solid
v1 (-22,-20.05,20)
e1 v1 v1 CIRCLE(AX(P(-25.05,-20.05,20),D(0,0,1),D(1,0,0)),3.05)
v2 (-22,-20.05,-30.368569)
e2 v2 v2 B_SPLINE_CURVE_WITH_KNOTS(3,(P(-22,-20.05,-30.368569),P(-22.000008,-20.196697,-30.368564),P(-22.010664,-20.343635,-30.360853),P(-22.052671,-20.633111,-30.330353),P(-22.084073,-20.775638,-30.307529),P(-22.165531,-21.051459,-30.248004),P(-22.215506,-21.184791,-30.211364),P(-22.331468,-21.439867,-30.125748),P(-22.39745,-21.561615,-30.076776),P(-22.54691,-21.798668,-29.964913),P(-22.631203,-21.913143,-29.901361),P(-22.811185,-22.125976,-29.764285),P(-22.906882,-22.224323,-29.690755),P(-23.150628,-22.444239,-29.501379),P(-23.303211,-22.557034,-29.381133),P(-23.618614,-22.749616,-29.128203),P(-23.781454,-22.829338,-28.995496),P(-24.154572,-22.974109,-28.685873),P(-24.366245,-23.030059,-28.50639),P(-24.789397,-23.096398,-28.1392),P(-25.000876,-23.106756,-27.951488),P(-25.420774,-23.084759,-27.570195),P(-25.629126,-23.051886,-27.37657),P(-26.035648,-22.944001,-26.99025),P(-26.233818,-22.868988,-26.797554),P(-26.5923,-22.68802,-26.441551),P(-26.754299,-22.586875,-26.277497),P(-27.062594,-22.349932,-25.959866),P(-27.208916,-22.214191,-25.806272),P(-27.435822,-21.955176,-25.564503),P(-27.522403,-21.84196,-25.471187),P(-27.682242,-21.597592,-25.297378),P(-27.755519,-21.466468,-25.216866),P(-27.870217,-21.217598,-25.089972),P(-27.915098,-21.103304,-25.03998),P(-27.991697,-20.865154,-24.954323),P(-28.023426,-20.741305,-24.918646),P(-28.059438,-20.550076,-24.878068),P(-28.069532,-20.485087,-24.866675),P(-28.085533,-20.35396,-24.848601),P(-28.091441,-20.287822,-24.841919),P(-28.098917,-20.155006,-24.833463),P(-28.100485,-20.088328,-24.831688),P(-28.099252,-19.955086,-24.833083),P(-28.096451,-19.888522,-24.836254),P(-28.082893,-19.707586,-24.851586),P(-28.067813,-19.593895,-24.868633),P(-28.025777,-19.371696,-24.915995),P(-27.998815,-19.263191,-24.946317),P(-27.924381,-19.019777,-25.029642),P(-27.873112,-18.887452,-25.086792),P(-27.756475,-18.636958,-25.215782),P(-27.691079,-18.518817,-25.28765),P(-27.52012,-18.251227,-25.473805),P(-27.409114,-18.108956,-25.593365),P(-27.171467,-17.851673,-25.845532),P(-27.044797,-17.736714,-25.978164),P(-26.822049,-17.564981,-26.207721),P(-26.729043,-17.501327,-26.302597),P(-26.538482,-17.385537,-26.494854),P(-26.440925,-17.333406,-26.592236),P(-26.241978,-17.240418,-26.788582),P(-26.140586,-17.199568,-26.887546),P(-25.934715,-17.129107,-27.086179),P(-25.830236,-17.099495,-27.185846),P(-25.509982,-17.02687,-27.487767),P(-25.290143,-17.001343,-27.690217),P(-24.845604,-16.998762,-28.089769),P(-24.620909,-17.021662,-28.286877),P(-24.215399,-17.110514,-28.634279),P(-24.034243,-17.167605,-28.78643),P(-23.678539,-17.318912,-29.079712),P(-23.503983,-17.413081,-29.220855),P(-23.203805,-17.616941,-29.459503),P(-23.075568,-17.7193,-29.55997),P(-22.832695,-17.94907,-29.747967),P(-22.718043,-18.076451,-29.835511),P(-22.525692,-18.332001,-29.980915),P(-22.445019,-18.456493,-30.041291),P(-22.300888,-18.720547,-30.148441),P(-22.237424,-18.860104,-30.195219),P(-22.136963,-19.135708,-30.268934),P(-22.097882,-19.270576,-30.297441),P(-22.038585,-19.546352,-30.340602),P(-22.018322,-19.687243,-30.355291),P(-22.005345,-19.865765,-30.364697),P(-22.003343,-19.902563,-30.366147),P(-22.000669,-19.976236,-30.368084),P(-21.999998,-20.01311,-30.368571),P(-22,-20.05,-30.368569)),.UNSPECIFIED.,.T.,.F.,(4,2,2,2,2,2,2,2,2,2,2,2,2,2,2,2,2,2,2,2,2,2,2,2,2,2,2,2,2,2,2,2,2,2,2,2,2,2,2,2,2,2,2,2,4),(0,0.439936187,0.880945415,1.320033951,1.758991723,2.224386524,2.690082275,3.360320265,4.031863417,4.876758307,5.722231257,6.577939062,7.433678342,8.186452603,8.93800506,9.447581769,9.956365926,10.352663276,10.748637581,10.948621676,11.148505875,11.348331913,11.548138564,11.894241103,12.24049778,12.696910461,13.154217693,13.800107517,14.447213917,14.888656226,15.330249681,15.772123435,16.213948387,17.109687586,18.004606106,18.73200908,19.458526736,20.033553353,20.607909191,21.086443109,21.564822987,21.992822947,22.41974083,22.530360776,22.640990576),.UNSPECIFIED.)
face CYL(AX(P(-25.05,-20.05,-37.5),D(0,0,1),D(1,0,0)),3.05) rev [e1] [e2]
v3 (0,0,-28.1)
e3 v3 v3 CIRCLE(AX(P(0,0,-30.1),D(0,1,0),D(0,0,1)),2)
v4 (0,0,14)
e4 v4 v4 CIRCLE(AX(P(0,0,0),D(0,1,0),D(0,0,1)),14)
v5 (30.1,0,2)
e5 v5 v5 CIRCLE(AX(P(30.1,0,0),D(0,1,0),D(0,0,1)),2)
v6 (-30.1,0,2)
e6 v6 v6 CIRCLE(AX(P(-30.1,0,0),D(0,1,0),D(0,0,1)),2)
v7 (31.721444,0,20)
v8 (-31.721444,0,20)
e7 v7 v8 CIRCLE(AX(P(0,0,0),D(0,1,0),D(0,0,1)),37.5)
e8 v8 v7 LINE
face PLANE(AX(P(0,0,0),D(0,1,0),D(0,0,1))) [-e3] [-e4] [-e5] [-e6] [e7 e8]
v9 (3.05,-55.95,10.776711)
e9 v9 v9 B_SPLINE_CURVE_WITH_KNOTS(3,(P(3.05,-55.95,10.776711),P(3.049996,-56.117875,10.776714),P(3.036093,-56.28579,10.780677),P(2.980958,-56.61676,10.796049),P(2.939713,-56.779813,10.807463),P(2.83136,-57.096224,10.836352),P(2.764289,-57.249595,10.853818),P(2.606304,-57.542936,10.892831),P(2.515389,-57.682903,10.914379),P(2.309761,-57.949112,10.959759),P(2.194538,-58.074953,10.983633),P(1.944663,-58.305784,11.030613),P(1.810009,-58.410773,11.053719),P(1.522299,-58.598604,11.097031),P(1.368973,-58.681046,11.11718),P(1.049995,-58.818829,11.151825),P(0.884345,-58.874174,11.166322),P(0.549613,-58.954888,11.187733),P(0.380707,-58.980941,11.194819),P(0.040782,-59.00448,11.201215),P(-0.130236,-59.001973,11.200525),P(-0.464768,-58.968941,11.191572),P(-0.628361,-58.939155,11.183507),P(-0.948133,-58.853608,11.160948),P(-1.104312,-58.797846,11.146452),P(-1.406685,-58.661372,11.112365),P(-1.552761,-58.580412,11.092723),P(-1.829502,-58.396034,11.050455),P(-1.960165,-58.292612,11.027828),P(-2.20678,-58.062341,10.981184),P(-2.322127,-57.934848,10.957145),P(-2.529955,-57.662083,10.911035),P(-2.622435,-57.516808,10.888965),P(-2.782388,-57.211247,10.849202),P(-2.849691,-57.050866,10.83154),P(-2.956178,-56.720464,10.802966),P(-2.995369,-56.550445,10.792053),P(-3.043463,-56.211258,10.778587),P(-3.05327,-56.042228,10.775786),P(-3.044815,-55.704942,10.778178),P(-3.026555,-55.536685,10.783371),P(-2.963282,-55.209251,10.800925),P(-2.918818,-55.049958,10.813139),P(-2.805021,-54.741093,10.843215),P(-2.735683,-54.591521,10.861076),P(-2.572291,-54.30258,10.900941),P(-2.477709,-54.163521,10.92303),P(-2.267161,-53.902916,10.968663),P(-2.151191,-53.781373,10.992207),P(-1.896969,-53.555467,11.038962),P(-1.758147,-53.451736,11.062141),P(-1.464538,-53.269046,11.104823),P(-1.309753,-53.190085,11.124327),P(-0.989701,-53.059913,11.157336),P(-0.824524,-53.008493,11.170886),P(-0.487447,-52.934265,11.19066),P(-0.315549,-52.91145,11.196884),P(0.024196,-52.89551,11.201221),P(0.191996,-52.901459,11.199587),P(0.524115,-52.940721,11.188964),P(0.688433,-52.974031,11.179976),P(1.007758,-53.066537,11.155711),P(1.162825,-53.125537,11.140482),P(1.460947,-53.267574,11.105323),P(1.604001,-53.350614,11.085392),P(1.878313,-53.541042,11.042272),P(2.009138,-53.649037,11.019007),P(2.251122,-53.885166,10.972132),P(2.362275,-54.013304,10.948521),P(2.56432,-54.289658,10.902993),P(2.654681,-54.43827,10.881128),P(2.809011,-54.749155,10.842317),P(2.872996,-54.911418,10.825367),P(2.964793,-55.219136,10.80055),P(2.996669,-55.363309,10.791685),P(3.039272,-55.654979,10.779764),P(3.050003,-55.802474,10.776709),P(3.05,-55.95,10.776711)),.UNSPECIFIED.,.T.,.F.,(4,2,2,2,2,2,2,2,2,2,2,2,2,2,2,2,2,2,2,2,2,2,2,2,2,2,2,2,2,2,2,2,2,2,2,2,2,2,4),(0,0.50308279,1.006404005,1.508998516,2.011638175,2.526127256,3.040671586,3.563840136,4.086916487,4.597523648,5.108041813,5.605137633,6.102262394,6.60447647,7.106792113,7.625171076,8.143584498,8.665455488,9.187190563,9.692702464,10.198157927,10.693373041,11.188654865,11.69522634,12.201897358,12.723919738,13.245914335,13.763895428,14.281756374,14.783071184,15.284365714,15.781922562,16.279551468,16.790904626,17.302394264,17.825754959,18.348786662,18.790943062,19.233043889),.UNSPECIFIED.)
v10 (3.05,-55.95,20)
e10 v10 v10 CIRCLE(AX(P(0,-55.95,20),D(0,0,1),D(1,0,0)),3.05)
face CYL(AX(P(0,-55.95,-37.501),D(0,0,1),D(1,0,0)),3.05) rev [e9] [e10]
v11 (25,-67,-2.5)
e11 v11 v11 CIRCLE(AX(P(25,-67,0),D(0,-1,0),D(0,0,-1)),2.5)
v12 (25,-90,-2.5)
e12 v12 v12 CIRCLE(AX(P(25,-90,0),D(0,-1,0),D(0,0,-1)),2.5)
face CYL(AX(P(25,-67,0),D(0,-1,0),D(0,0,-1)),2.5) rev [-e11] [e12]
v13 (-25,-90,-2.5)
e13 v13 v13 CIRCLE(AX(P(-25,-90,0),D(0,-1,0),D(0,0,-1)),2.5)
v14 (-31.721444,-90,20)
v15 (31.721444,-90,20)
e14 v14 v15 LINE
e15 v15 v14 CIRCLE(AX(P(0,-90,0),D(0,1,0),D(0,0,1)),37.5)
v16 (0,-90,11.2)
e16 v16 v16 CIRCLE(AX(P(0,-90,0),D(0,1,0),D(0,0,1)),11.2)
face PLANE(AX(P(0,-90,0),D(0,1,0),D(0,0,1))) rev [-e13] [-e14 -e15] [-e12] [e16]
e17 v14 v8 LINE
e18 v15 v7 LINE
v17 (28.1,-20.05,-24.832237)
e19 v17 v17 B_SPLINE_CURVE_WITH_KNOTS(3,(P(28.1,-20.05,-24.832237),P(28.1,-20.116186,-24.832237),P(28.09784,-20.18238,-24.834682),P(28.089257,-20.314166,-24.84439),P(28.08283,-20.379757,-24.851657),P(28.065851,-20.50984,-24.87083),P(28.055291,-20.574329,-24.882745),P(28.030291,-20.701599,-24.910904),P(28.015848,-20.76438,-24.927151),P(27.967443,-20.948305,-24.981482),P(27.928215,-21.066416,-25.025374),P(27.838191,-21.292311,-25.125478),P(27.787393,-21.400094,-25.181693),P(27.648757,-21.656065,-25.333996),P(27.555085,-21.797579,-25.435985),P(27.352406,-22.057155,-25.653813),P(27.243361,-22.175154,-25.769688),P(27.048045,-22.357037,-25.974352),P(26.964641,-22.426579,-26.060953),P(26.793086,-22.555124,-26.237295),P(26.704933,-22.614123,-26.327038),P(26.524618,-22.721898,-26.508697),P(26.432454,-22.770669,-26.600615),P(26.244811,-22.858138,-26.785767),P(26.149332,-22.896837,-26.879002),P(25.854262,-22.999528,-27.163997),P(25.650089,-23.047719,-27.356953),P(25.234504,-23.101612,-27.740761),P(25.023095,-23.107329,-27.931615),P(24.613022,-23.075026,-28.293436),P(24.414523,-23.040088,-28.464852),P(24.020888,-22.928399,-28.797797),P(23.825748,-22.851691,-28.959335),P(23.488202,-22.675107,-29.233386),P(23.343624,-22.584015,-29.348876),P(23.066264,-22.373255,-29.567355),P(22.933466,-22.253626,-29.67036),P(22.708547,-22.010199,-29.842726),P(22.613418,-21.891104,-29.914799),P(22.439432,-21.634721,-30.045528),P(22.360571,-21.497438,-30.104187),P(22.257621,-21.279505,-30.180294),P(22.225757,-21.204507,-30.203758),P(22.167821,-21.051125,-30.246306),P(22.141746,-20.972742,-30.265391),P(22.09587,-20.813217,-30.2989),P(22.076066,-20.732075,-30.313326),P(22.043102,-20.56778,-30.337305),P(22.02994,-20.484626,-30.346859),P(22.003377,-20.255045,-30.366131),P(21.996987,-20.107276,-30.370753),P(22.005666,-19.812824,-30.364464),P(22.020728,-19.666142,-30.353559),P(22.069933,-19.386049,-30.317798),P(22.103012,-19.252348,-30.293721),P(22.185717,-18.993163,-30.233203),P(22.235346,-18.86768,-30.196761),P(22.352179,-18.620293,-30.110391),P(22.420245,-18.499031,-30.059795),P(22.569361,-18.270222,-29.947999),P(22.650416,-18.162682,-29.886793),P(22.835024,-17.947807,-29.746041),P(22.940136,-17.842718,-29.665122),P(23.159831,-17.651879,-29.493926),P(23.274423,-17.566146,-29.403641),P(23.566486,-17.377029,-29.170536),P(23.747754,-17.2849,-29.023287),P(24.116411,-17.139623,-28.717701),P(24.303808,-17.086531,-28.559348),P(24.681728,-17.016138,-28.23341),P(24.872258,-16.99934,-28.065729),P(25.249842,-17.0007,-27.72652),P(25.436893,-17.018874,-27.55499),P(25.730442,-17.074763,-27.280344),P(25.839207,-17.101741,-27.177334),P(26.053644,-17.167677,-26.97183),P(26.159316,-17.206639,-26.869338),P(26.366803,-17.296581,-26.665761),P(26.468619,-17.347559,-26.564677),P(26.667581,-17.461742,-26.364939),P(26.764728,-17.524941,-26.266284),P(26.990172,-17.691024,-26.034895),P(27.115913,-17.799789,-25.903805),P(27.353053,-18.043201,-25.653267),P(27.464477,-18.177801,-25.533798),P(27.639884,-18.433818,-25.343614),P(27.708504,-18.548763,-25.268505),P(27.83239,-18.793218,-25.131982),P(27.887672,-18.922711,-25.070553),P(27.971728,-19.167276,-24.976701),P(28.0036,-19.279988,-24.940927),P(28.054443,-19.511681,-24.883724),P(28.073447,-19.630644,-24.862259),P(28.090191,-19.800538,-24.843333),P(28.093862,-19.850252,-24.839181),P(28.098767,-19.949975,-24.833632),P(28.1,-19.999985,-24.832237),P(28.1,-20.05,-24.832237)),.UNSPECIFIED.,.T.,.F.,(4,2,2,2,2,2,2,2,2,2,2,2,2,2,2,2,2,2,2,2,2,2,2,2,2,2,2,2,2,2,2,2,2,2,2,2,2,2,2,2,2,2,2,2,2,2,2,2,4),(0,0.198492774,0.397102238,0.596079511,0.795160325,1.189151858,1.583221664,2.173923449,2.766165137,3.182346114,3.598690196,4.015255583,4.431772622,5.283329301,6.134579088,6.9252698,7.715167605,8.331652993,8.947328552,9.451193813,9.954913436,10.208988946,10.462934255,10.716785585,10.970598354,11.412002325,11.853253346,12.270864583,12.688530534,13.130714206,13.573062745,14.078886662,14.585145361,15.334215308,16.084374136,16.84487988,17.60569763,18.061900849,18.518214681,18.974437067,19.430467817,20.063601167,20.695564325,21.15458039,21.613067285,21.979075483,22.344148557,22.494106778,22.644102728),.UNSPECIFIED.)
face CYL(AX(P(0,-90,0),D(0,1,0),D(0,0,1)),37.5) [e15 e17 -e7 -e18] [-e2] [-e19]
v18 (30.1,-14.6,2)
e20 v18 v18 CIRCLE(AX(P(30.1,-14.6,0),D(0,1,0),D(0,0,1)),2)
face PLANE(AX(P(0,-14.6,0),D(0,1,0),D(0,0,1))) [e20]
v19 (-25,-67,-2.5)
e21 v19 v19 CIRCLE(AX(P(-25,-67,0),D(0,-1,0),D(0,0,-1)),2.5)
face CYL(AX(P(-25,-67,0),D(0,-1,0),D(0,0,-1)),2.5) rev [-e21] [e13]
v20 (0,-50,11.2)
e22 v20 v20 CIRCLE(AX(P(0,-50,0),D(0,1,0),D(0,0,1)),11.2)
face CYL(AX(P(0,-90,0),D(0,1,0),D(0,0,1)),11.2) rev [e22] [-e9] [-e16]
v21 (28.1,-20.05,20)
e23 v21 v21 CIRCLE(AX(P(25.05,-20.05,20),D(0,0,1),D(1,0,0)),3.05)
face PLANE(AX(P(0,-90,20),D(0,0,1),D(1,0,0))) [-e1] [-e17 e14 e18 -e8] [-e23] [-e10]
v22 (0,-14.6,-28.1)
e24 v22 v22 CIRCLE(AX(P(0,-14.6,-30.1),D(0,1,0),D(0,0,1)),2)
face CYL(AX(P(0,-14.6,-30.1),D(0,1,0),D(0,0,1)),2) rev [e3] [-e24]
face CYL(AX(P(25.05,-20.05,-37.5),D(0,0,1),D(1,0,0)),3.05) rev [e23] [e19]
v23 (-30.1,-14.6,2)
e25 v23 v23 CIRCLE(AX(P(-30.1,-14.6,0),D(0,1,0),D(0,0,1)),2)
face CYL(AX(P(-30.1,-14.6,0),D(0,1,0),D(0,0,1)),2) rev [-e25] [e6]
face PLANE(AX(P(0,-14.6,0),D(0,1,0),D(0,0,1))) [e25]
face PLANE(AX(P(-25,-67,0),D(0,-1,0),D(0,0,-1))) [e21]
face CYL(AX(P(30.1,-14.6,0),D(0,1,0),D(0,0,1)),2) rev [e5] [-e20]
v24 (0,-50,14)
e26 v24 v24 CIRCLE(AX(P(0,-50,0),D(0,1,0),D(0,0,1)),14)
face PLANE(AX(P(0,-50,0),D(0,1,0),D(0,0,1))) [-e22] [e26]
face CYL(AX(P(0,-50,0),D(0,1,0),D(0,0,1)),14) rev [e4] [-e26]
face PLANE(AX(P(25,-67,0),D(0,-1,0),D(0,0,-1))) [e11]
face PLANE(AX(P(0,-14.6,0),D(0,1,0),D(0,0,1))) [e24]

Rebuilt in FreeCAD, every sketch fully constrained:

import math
import FreeCAD as App
import Part
import Sketcher

doc = App.newDocument("Part")
params = doc.addObject("Spreadsheet::Sheet", "Params")
for row, (alias, value) in enumerate([
    ("sketch1_diameter", "22.4 mm"),
    ("sketch1_radius", "37.5 mm"),
    ("pad1_length", "90 mm"),
    ("sketch2_diameter", "4 mm"),
    ("pocket1_length", "14.6 mm"),
    ("sketch3_diameter", "28 mm"),
    ("sketch3_diameter2", "22.4 mm"),
    ("pocket2_length", "50 mm"),
    ("sketch4_diameter", "5 mm"),
    ("pocket3_length", "23 mm"),
    ("sketch5_diameter", "6.1 mm"),
    ("sketch6_diameter", "6.1 mm"),
], start=1):
    params.set(f"A{row}", alias)
    params.set(f"B{row}", "=" + value)
    params.setAlias(f"B{row}", alias)

body = doc.addObject("PartDesign::Body", "Body")

# Sketch on XZ plane
sketch1 = body.newObject("Sketcher::SketchObject", "Sketch")
sketch1.AttachmentSupport = (doc.getObject("XZ_Plane"), [""])
sketch1.MapMode = "FlatFace"
sketch1.addGeometry(Part.ArcOfCircle(Part.Circle(App.Vector(0, 0, 0), App.Vector(0, 0, 1), 38), math.radians(148), math.radians(360)), False)
sketch1.addGeometry(Part.LineSegment(App.Vector(-32, 20, 0), App.Vector(32, 20, 0)), False)
sketch1.addGeometry(Part.ArcOfCircle(Part.Circle(App.Vector(0, 0, 0), App.Vector(0, 0, 1), 37), math.radians(0), math.radians(32)), False)
sketch1.addGeometry(Part.Circle(App.Vector(0, 0, 0), App.Vector(0, 0, 1), 11), False)
sketch1.addConstraint(Sketcher.Constraint("Coincident", 0, 1, 1, 1))
sketch1.addConstraint(Sketcher.Constraint("Coincident", 1, 2, 2, 2))
sketch1.addConstraint(Sketcher.Constraint("Tangent", 2, 1, 0, 2))
sketch1.addConstraint(Sketcher.Constraint("Horizontal", 1))
sketch1.addConstraint(Sketcher.Constraint("Coincident", 0, 3, -1, 1))
sketch1.addConstraint(Sketcher.Constraint("Coincident", 3, 3, -1, 1))
sketch1.addConstraint(Sketcher.Constraint("Equal", 0, 2))
sketch1.addConstraint(Sketcher.Constraint("PointOnObject", 2, 1, -1))
sketch1.addConstraint(Sketcher.Constraint("Diameter", 3, 22.4))
sketch1.addConstraint(Sketcher.Constraint("Radius", 0, 37.5))
sketch1.addConstraint(Sketcher.Constraint("DistanceY", -1, 1, 0, 1, 20.0))
sketch1.setExpression("Constraints[8]", "Params.sketch1_diameter")
sketch1.setExpression("Constraints[9]", "Params.sketch1_radius")
pad1 = body.newObject("PartDesign::Pad", "Pad")
pad1.Profile = sketch1
pad1.setExpression("Length", "Params.pad1_length")

# Sketch on XZ plane
sketch2 = body.newObject("Sketcher::SketchObject", "Sketch001")
sketch2.AttachmentSupport = (doc.getObject("XZ_Plane"), [""])
sketch2.MapMode = "FlatFace"
sketch2.addGeometry(Part.Circle(App.Vector(-30.1, 0, 0), App.Vector(0, 0, 1), 2), False)
sketch2.addGeometry(Part.Circle(App.Vector(0, -30.1, 0), App.Vector(0, 0, 1), 2), False)
sketch2.addGeometry(Part.Circle(App.Vector(30.1, 0, 0), App.Vector(0, 0, 1), 2), False)
sketch2.addConstraint(Sketcher.Constraint("Equal", 0, 1))
sketch2.addConstraint(Sketcher.Constraint("Equal", 1, 2))
sketch2.addConstraint(Sketcher.Constraint("Symmetric", 0, 3, 2, 3, -1, 1))
sketch2.addConstraint(Sketcher.Constraint("PointOnObject", 0, 3, -1))
sketch2.addConstraint(Sketcher.Constraint("PointOnObject", 1, 3, -2))
sketch2.addConstraint(Sketcher.Constraint("Diameter", 0, 4.0))
sketch2.addConstraint(Sketcher.Constraint("DistanceX", 0, 3, -1, 1, 30.1))
sketch2.addConstraint(Sketcher.Constraint("DistanceY", 1, 3, -1, 1, 30.1))
sketch2.setExpression("Constraints[5]", "Params.sketch2_diameter")
pocket1 = body.newObject("PartDesign::Pocket", "Pocket")
pocket1.Profile = sketch2
pocket1.setExpression("Length", "Params.pocket1_length")
pocket1.Reversed = True

# Sketch on XZ plane
sketch3 = body.newObject("Sketcher::SketchObject", "Sketch002")
sketch3.AttachmentSupport = (doc.getObject("XZ_Plane"), [""])
sketch3.MapMode = "FlatFace"
sketch3.addGeometry(Part.Circle(App.Vector(0, 0, 0), App.Vector(0, 0, 1), 14), False)
sketch3.addGeometry(Part.Circle(App.Vector(0, 0, 0), App.Vector(0, 0, 1), 11), False)
sketch3.addConstraint(Sketcher.Constraint("Coincident", 0, 3, -1, 1))
sketch3.addConstraint(Sketcher.Constraint("Coincident", 1, 3, -1, 1))
sketch3.addConstraint(Sketcher.Constraint("Diameter", 0, 28.0))
sketch3.addConstraint(Sketcher.Constraint("Diameter", 1, 22.4))
sketch3.setExpression("Constraints[2]", "Params.sketch3_diameter")
sketch3.setExpression("Constraints[3]", "Params.sketch3_diameter2")
pocket2 = body.newObject("PartDesign::Pocket", "Pocket001")
pocket2.Profile = sketch3
pocket2.setExpression("Length", "Params.pocket2_length")
pocket2.Reversed = True

# Sketch on XZ plane
sketch4 = body.newObject("Sketcher::SketchObject", "Sketch003")
sketch4.AttachmentSupport = (doc.getObject("XZ_Plane"), [""])
sketch4.MapMode = "FlatFace"
sketch4.AttachmentOffset = App.Placement(App.Vector(0, 0, 90), App.Rotation())
sketch4.addGeometry(Part.Circle(App.Vector(-25, 0, 0), App.Vector(0, 0, 1), 2.5), False)
sketch4.addGeometry(Part.Circle(App.Vector(25, 0, 0), App.Vector(0, 0, 1), 2.5), False)
sketch4.addConstraint(Sketcher.Constraint("Equal", 0, 1))
sketch4.addConstraint(Sketcher.Constraint("Symmetric", 0, 3, 1, 3, -1, 1))
sketch4.addConstraint(Sketcher.Constraint("PointOnObject", 0, 3, -1))
sketch4.addConstraint(Sketcher.Constraint("Diameter", 0, 5.0))
sketch4.addConstraint(Sketcher.Constraint("DistanceX", 0, 3, -1, 1, 25.0))
sketch4.setExpression("Constraints[3]", "Params.sketch4_diameter")
pocket3 = body.newObject("PartDesign::Pocket", "Pocket002")
pocket3.Profile = sketch4
pocket3.setExpression("Length", "Params.pocket3_length")

# Sketch on XY plane
sketch5 = body.newObject("Sketcher::SketchObject", "Sketch004")
sketch5.AttachmentSupport = (doc.getObject("XY_Plane"), [""])
sketch5.MapMode = "FlatFace"
sketch5.AttachmentOffset = App.Placement(App.Vector(0, 0, 20), App.Rotation())
sketch5.addGeometry(Part.Circle(App.Vector(25.1, -20.1, 0), App.Vector(0, 0, 1), 3), False)
sketch5.addGeometry(Part.Circle(App.Vector(-25.1, -20.1, 0), App.Vector(0, 0, 1), 3), False)
sketch5.addConstraint(Sketcher.Constraint("Equal", 0, 1))
sketch5.addConstraint(Sketcher.Constraint("Symmetric", 0, 3, 1, 3, -2))
sketch5.addConstraint(Sketcher.Constraint("Diameter", 0, 6.1))
sketch5.addConstraint(Sketcher.Constraint("DistanceX", 1, 3, 0, 3, 50.1))
sketch5.addConstraint(Sketcher.Constraint("DistanceY", 0, 3, -1, 1, 20.05))
sketch5.setExpression("Constraints[2]", "Params.sketch5_diameter")
pocket4 = body.newObject("PartDesign::Pocket", "Pocket003")
pocket4.Profile = sketch5
pocket4.Type = "ThroughAll"

# Sketch on XY plane
sketch6 = body.newObject("Sketcher::SketchObject", "Sketch005")
sketch6.AttachmentSupport = (doc.getObject("XY_Plane"), [""])
sketch6.MapMode = "FlatFace"
sketch6.AttachmentOffset = App.Placement(App.Vector(0, 0, 20), App.Rotation())
sketch6.addGeometry(Part.Circle(App.Vector(0, -56, 0), App.Vector(0, 0, 1), 3), False)
sketch6.addConstraint(Sketcher.Constraint("PointOnObject", 0, 3, -2))
sketch6.addConstraint(Sketcher.Constraint("Diameter", 0, 6.1))
sketch6.addConstraint(Sketcher.Constraint("DistanceY", 0, 3, -1, 1, 55.95))
sketch6.setExpression("Constraints[1]", "Params.sketch6_diameter")
pocket5 = body.newObject("PartDesign::Pocket", "Pocket004")
pocket5.Profile = sketch6
pocket5.Type = "UpToFirst"

doc.recompute()
